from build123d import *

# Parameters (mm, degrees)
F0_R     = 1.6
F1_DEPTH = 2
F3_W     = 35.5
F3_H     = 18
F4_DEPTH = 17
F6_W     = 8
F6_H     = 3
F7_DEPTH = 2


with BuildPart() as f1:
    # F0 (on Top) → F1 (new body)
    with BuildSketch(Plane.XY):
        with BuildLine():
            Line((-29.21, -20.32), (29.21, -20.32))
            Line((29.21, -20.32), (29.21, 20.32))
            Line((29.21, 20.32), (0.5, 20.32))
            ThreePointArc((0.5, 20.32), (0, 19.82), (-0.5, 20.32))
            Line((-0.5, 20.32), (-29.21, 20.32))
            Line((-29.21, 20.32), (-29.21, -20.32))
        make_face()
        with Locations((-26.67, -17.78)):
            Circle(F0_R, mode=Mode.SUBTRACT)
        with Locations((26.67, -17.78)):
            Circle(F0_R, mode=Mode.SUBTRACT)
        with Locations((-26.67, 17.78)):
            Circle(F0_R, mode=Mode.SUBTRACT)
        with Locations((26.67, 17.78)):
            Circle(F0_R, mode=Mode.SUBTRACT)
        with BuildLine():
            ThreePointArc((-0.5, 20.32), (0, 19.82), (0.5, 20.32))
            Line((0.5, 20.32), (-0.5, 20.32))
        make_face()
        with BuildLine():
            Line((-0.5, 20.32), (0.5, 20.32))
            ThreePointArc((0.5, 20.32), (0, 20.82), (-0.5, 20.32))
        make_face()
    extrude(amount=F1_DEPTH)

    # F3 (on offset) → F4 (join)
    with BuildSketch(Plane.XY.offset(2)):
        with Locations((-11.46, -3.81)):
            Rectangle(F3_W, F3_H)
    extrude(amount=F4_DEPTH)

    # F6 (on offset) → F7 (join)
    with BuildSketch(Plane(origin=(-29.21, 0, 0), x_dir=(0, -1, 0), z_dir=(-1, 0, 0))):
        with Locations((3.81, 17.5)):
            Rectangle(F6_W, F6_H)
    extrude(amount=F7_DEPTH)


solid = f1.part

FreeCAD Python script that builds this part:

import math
import FreeCAD as App
import Part
import Sketcher


def add_polygon(sketch, points):
    """Adds a closed chain of lines whose ends are joined by coincident constraints."""
    first, n = sketch.GeometryCount, len(points)
    for a, b in zip(points, points[1:] + points[:1]):
        sketch.addGeometry(Part.LineSegment(App.Vector(*a, 0), App.Vector(*b, 0)), False)
    for i in range(n):
        sketch.addConstraint(Sketcher.Constraint("Coincident", first + i, 2, first + (i + 1) % n, 1))

doc = App.newDocument("Part")
params = doc.addObject("Spreadsheet::Sheet", "Params")
for row, (alias, value) in enumerate([
    ("sketch1_diameter", "3.2 mm"),
    ("sketch1_radius", "0.5 mm"),
    ("sketch1_width", "58.42 mm"),
    ("sketch1_height", "40.64 mm"),
    ("pad1_length", "2 mm"),
    ("sketch2_height", "18 mm"),
    ("sketch2_width", "35.5 mm"),
    ("pad2_length", "17 mm"),
    ("sketch3_width", "8 mm"),
    ("sketch3_height", "3 mm"),
    ("pad3_length", "2 mm"),
], start=1):
    params.set(f"A{row}", alias)
    params.set(f"B{row}", "=" + value)
    params.setAlias(f"B{row}", alias)

body = doc.addObject("PartDesign::Body", "Body")

sketch1 = doc.addObject("Sketcher::SketchObject", "Sketch")
body.addObject(sketch1)
sketch1.AttachmentSupport = (doc.XY_Plane, [""])
sketch1.MapMode = "FlatFace"
sketch1.addGeometry(Part.LineSegment(App.Vector(-29.2, -20.3, 0), App.Vector(29.2, -20.3, 0)), False)
sketch1.addGeometry(Part.LineSegment(App.Vector(29.2, -20.3, 0), App.Vector(29.2, 20.3, 0)), False)
sketch1.addGeometry(Part.LineSegment(App.Vector(29.2, 20.3, 0), App.Vector(0.5, 20.3, 0)), False)
sketch1.addGeometry(Part.ArcOfCircle(Part.Circle(App.Vector(0, 20.3, 0), App.Vector(0, 0, 1), 0.5), math.radians(0), math.radians(180)), False)
sketch1.addGeometry(Part.LineSegment(App.Vector(-0.5, 20.3, 0), App.Vector(-29.2, 20.3, 0)), False)
sketch1.addGeometry(Part.LineSegment(App.Vector(-29.2, 20.3, 0), App.Vector(-29.2, -20.3, 0)), False)
sketch1.addGeometry(Part.Circle(App.Vector(-26.7, -17.8, 0), App.Vector(0, 0, 1), 1.6), False)
sketch1.addGeometry(Part.Circle(App.Vector(26.7, -17.8, 0), App.Vector(0, 0, 1), 1.6), False)
sketch1.addGeometry(Part.Circle(App.Vector(-26.7, 17.8, 0), App.Vector(0, 0, 1), 1.6), False)
sketch1.addGeometry(Part.Circle(App.Vector(26.7, 17.8, 0), App.Vector(0, 0, 1), 1.6), False)
sketch1.addConstraint(Sketcher.Constraint("Coincident", 0, 2, 1, 1))
sketch1.addConstraint(Sketcher.Constraint("Coincident", 1, 2, 2, 1))
sketch1.addConstraint(Sketcher.Constraint("Coincident", 2, 2, 3, 1))
sketch1.addConstraint(Sketcher.Constraint("Coincident", 3, 2, 4, 1))
sketch1.addConstraint(Sketcher.Constraint("Coincident", 4, 2, 5, 1))
sketch1.addConstraint(Sketcher.Constraint("Coincident", 5, 2, 0, 1))
sketch1.addConstraint(Sketcher.Constraint("Horizontal", 0))
sketch1.addConstraint(Sketcher.Constraint("Vertical", 1))
sketch1.addConstraint(Sketcher.Constraint("Horizontal", 2))
sketch1.addConstraint(Sketcher.Constraint("Horizontal", 4))
sketch1.addConstraint(Sketcher.Constraint("Vertical", 5))
sketch1.addConstraint(Sketcher.Constraint("Equal", 6, 7))
sketch1.addConstraint(Sketcher.Constraint("Equal", 7, 8))
sketch1.addConstraint(Sketcher.Constraint("Equal", 8, 9))
sketch1.addConstraint(Sketcher.Constraint("Symmetric", 7, 3, 8, 3, -1, 1))
sketch1.addConstraint(Sketcher.Constraint("Symmetric", 6, 3, 9, 3, -1, 1))
sketch1.addConstraint(Sketcher.Constraint("Symmetric", 0, 2, 4, 2, -1, 1))
sketch1.addConstraint(Sketcher.Constraint("Symmetric", 6, 3, 7, 3, -2))
sketch1.addConstraint(Sketcher.Constraint("Symmetric", 2, 2, 3, 2, -2))
sketch1.addConstraint(Sketcher.Constraint("Horizontal", 3, 3, 1, 2))
sketch1.addConstraint(Sketcher.Constraint("Diameter", 6, 3.2))
sketch1.addConstraint(Sketcher.Constraint("Radius", 3, 0.5))
sketch1.addConstraint(Sketcher.Constraint("DistanceX", 0, 1, 0, 2, 58.42))
sketch1.addConstraint(Sketcher.Constraint("DistanceY", 1, 1, 1, 2, 40.64))
sketch1.addConstraint(Sketcher.Constraint("DistanceY", 6, 3, 3, 3, 38.1))
sketch1.addConstraint(Sketcher.Constraint("DistanceX", 6, 3, -1, 1, 26.67))
sketch1.setExpression("Constraints[20]", "Params.sketch1_diameter")
sketch1.setExpression("Constraints[21]", "Params.sketch1_radius")
sketch1.setExpression("Constraints[22]", "Params.sketch1_width")
sketch1.setExpression("Constraints[23]", "Params.sketch1_height")
pad1 = doc.addObject("PartDesign::Pad", "Pad")
body.addObject(pad1)
pad1.Profile = sketch1
pad1.setExpression("Length", "Params.pad1_length")

sketch2 = doc.addObject("Sketcher::SketchObject", "Sketch001")
body.addObject(sketch2)
sketch2.AttachmentSupport = (doc.XY_Plane, [""])
sketch2.MapMode = "FlatFace"
sketch2.AttachmentOffset = App.Placement(App.Vector(0, 0, 2), App.Rotation())
add_polygon(sketch2, [(-29, 5), (-29, -13), (6, -13), (6, 5)])
sketch2.addConstraint(Sketcher.Constraint("Vertical", 0))
sketch2.addConstraint(Sketcher.Constraint("Horizontal", 1))
sketch2.addConstraint(Sketcher.Constraint("Vertical", 2))
sketch2.addConstraint(Sketcher.Constraint("Horizontal", 3))
sketch2.addConstraint(Sketcher.Constraint("DistanceY", 0, 2, 0, 1, 18.0))
sketch2.addConstraint(Sketcher.Constraint("DistanceX", 1, 1, 1, 2, 35.5))
sketch2.addConstraint(Sketcher.Constraint("DistanceX", 0, 2, -1, 1, 29.21))
sketch2.addConstraint(Sketcher.Constraint("DistanceY", 0, 2, -1, 1, 12.81))
sketch2.setExpression("Constraints[8]", "Params.sketch2_height")
sketch2.setExpression("Constraints[9]", "Params.sketch2_width")
pad2 = doc.addObject("PartDesign::Pad", "Pad001")
body.addObject(pad2)
pad2.Profile = sketch2
pad2.setExpression("Length", "Params.pad2_length")

sketch3 = doc.addObject("Sketcher::SketchObject", "Sketch002")
body.addObject(sketch3)
sketch3.AttachmentSupport = (doc.YZ_Plane, [""])
sketch3.MapMode = "FlatFace"
sketch3.AttachmentOffset = App.Placement(App.Vector(0, 0, -29.21), App.Rotation())
add_polygon(sketch3, [(0.2, 19), (0.2, 16), (-7.8, 16), (-7.8, 19)])
sketch3.addConstraint(Sketcher.Constraint("Vertical", 0))
sketch3.addConstraint(Sketcher.Constraint("Horizontal", 1))
sketch3.addConstraint(Sketcher.Constraint("Vertical", 2))
sketch3.addConstraint(Sketcher.Constraint("Horizontal", 3))
sketch3.addConstraint(Sketcher.Constraint("DistanceX", 1, 2, 1, 1, 8.0))
sketch3.addConstraint(Sketcher.Constraint("DistanceY", 0, 2, 0, 1, 3.0))
sketch3.addConstraint(Sketcher.Constraint("DistanceY", -1, 1, 0, 2, 16.0))
sketch3.addConstraint(Sketcher.Constraint("DistanceX", -1, 1, 0, 2, 0.19))
sketch3.setExpression("Constraints[8]", "Params.sketch3_width")
sketch3.setExpression("Constraints[9]", "Params.sketch3_height")
pad3 = doc.addObject("PartDesign::Pad", "Pad002")
body.addObject(pad3)
pad3.Profile = sketch3
pad3.setExpression("Length", "Params.pad3_length")
pad3.Reversed = True

doc.recompute()
